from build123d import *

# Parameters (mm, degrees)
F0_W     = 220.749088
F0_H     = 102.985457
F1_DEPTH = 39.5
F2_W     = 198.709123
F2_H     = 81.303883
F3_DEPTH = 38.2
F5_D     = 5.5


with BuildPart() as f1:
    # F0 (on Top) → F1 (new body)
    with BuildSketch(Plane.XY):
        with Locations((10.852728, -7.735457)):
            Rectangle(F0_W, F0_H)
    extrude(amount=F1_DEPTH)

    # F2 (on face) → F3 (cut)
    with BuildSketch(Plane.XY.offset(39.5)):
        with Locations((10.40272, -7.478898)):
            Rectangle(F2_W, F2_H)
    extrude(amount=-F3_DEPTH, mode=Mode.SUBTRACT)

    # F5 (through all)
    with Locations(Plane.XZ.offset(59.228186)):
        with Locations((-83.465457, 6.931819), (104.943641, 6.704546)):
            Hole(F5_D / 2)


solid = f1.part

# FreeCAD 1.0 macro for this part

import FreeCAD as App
import Part
import Sketcher

doc = App.newDocument("Part")
body = doc.addObject("PartDesign::Body", "Body")

# Sketch on XY plane
sketch1 = body.newObject("Sketcher::SketchObject", "Sketch")
sketch1.AttachmentSupport = (doc.getObject("XY_Plane"), [""])
sketch1.MapMode = "FlatFace"
sketch1.addGeometry([
    Part.LineSegment(App.Vector(-100, 44, 0), App.Vector(-100, -59, 0)),
    Part.LineSegment(App.Vector(-100, -59, 0), App.Vector(121, -59, 0)),
    Part.LineSegment(App.Vector(121, -59, 0), App.Vector(121, 44, 0)),
    Part.LineSegment(App.Vector(121, 44, 0), App.Vector(-100, 44, 0)),
], False)
sketch1.addConstraint([
    Sketcher.Constraint("Coincident", 0, 2, 1, 1),
    Sketcher.Constraint("Coincident", 1, 2, 2, 1),
    Sketcher.Constraint("Coincident", 2, 2, 3, 1),
    Sketcher.Constraint("Coincident", 3, 2, 0, 1),
    Sketcher.Constraint("Vertical", 0),
    Sketcher.Constraint("Horizontal", 1),
    Sketcher.Constraint("Vertical", 2),
    Sketcher.Constraint("Horizontal", 3),
    Sketcher.Constraint("DistanceX", 1, 1, 1, 2, 220.749088),
    Sketcher.Constraint("DistanceY", 0, 2, 0, 1, 102.985457),
    Sketcher.Constraint("DistanceX", -1, 1, 1, 2, 121.227272),
    Sketcher.Constraint("DistanceY", -1, 1, 2, 2, 43.757272),
])
pad1 = body.newObject("PartDesign::Pad", "Pad")
pad1.Profile = sketch1
pad1.Length = 39.5

# Sketch on XY plane
sketch2 = body.newObject("Sketcher::SketchObject", "Sketch001")
sketch2.AttachmentSupport = (doc.getObject("XY_Plane"), [""])
sketch2.MapMode = "FlatFace"
sketch2.AttachmentOffset = App.Placement(App.Vector(0, 0, 39.5), App.Rotation())
sketch2.addGeometry([
    Part.LineSegment(App.Vector(-89, 33, 0), App.Vector(-89, -48, 0)),
    Part.LineSegment(App.Vector(-89, -48, 0), App.Vector(110, -48, 0)),
    Part.LineSegment(App.Vector(110, -48, 0), App.Vector(110, 33, 0)),
    Part.LineSegment(App.Vector(110, 33, 0), App.Vector(-89, 33, 0)),
], False)
sketch2.addConstraint([
    Sketcher.Constraint("Coincident", 0, 2, 1, 1),
    Sketcher.Constraint("Coincident", 1, 2, 2, 1),
    Sketcher.Constraint("Coincident", 2, 2, 3, 1),
    Sketcher.Constraint("Coincident", 3, 2, 0, 1),
    Sketcher.Constraint("Vertical", 0),
    Sketcher.Constraint("Horizontal", 1),
    Sketcher.Constraint("Vertical", 2),
    Sketcher.Constraint("Horizontal", 3),
    Sketcher.Constraint("DistanceX", 1, 1, 1, 2, 198.709123),
    Sketcher.Constraint("DistanceY", 0, 2, 0, 1, 81.303883),
    Sketcher.Constraint("DistanceX", 0, 2, -1, 1, 88.951842),
    Sketcher.Constraint("DistanceY", 0, 2, -1, 1, 48.13084),
])
pocket1 = body.newObject("PartDesign::Pocket", "Pocket")
pocket1.Profile = sketch2
pocket1.Length = 38.2

# Sketch on XZ plane
sketch3 = body.newObject("Sketcher::SketchObject", "Sketch002")
sketch3.AttachmentSupport = (doc.getObject("XZ_Plane"), [""])
sketch3.MapMode = "FlatFace"
sketch3.AttachmentOffset = App.Placement(App.Vector(0, 0, 59.228186), App.Rotation())
sketch3.addGeometry([
    Part.Circle(App.Vector(-83.5, 6.9, 0), App.Vector(0, 0, 1), 2.8),
    Part.Circle(App.Vector(104.9, 6.7, 0), App.Vector(0, 0, 1), 2.8),
], False)
sketch3.addConstraint([
    Sketcher.Constraint("Equal", 0, 1),
    Sketcher.Constraint("Diameter", 0, 5.5),
    Sketcher.Constraint("DistanceX", 0, 3, 1, 3, 188.409098),
    Sketcher.Constraint("DistanceY", -1, 1, 0, 3, 6.931819),
    Sketcher.Constraint("DistanceX", -1, 1, 1, 3, 104.943641),
    Sketcher.Constraint("DistanceY", -1, 1, 1, 3, 6.704546),
])
doc.recompute()
hole = body.newObject("PartDesign::Hole", "Hole")
hole.Profile = sketch3
hole.ThreadType = "None"
hole.Diameter = 5.5
hole.DepthType = "ThroughAll"

doc.recompute()
